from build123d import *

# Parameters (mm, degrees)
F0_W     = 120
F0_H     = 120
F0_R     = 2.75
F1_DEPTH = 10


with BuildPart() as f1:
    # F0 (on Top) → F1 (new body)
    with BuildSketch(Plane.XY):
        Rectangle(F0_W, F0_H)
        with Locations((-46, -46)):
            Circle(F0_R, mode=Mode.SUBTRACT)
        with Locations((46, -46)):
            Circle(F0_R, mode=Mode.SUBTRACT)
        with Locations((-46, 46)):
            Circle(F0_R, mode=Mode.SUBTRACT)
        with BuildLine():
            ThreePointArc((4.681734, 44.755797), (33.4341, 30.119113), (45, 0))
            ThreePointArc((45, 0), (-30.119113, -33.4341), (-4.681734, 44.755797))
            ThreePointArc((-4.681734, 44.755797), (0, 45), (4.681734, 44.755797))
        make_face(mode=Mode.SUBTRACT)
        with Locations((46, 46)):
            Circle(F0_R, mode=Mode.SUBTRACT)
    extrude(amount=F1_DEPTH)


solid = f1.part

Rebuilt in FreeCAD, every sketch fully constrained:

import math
import FreeCAD as App
import Part
import Sketcher
from FreeCAD import Vector


def add_polygon(sketch, points):
    """Adds a closed chain of lines whose ends are joined by coincident constraints."""
    first, n = sketch.GeometryCount, len(points)
    for a, b in zip(points, points[1:] + points[:1]):
        sketch.addGeometry(Part.LineSegment(App.Vector(*a, 0), App.Vector(*b, 0)), False)
    for i in range(n):
        sketch.addConstraint(Sketcher.Constraint("Coincident", first + i, 2, first + (i + 1) % n, 1))

doc = App.newDocument("Part")
body = doc.addObject("PartDesign::Body", "Body")

# Sketch on XY plane
sketch1 = body.newObject("Sketcher::SketchObject", "Sketch")
sketch1.AttachmentSupport = (doc.getObject("XY_Plane"), [""])
sketch1.MapMode = "FlatFace"
add_polygon(sketch1, [(-60, 60), (-60, -60), (60, -60), (60, 60)])  # lines 0-3
sketch1.addGeometry(Part.Circle(Vector(-46, -46, 0), Vector(0, 0, 1), 2.8), False)  # 4
sketch1.addGeometry(Part.ArcOfCircle(Part.Circle(Vector(0, 0, 0), Vector(0, 0, 1), 45), math.radians(84.03), math.radians(95.97)), False)  # 5
sketch1.addGeometry(Part.ArcOfCircle(Part.Circle(Vector(0, 0, 0), Vector(0, 0, 1), 45), math.radians(0), math.radians(84)), False)  # 6
sketch1.addGeometry(Part.ArcOfCircle(Part.Circle(Vector(0, 0, 0), Vector(0, 0, 1), 45), math.radians(96), math.radians(360)), False)  # 7
sketch1.addGeometry(Part.Circle(Vector(46, -46, 0), Vector(0, 0, 1), 2.8), False)  # 8
sketch1.addGeometry(Part.Circle(Vector(-46, 46, 0), Vector(0, 0, 1), 2.8), False)  # 9
sketch1.addGeometry(Part.Circle(Vector(46, 46, 0), Vector(0, 0, 1), 2.8), False)  # 10
sketch1.addConstraint([
    Sketcher.Constraint("Tangent", 5, 1, 6, 2),
    Sketcher.Constraint("Tangent", 6, 1, 7, 2),
    Sketcher.Constraint("Tangent", 7, 1, 5, 2),
    Sketcher.Constraint("Vertical", 0),
    Sketcher.Constraint("Horizontal", 1),
    Sketcher.Constraint("Vertical", 2),
    Sketcher.Constraint("Horizontal", 3),
    Sketcher.Constraint("Coincident", 5, 3, -1, 1),
    Sketcher.Constraint("Equal", 4, 8),
    Sketcher.Constraint("Equal", 8, 9),
    Sketcher.Constraint("Equal", 9, 10),
    Sketcher.Constraint("Symmetric", 8, 3, 9, 3, -1, 1),
    Sketcher.Constraint("Symmetric", 4, 3, 10, 3, -1, 1),
    Sketcher.Constraint("Symmetric", 0, 2, 2, 2, -1, 1),
    Sketcher.Constraint("Symmetric", 4, 3, 8, 3, -2),
    Sketcher.Constraint("PointOnObject", 6, 1, -1),
    Sketcher.Constraint("Horizontal", 5, 1, 7, 1),
    Sketcher.Constraint("Equal", 3, 0),
    Sketcher.Constraint("Radius", 6, 45.0),
    Sketcher.Constraint("Diameter", 4, 5.5),
    Sketcher.Constraint("DistanceX", 1, 1, 1, 2, 120.0),
    Sketcher.Constraint("DistanceX", 4, 3, -1, 1, 46.0),
    Sketcher.Constraint("DistanceY", 4, 3, -1, 1, 46.0),
    Sketcher.Constraint("DistanceX", 7, 1, 5, 1, 9.363468),
])
pad1 = body.newObject("PartDesign::Pad", "Pad")
pad1.Profile = sketch1
pad1.Length = 10

doc.recompute()
